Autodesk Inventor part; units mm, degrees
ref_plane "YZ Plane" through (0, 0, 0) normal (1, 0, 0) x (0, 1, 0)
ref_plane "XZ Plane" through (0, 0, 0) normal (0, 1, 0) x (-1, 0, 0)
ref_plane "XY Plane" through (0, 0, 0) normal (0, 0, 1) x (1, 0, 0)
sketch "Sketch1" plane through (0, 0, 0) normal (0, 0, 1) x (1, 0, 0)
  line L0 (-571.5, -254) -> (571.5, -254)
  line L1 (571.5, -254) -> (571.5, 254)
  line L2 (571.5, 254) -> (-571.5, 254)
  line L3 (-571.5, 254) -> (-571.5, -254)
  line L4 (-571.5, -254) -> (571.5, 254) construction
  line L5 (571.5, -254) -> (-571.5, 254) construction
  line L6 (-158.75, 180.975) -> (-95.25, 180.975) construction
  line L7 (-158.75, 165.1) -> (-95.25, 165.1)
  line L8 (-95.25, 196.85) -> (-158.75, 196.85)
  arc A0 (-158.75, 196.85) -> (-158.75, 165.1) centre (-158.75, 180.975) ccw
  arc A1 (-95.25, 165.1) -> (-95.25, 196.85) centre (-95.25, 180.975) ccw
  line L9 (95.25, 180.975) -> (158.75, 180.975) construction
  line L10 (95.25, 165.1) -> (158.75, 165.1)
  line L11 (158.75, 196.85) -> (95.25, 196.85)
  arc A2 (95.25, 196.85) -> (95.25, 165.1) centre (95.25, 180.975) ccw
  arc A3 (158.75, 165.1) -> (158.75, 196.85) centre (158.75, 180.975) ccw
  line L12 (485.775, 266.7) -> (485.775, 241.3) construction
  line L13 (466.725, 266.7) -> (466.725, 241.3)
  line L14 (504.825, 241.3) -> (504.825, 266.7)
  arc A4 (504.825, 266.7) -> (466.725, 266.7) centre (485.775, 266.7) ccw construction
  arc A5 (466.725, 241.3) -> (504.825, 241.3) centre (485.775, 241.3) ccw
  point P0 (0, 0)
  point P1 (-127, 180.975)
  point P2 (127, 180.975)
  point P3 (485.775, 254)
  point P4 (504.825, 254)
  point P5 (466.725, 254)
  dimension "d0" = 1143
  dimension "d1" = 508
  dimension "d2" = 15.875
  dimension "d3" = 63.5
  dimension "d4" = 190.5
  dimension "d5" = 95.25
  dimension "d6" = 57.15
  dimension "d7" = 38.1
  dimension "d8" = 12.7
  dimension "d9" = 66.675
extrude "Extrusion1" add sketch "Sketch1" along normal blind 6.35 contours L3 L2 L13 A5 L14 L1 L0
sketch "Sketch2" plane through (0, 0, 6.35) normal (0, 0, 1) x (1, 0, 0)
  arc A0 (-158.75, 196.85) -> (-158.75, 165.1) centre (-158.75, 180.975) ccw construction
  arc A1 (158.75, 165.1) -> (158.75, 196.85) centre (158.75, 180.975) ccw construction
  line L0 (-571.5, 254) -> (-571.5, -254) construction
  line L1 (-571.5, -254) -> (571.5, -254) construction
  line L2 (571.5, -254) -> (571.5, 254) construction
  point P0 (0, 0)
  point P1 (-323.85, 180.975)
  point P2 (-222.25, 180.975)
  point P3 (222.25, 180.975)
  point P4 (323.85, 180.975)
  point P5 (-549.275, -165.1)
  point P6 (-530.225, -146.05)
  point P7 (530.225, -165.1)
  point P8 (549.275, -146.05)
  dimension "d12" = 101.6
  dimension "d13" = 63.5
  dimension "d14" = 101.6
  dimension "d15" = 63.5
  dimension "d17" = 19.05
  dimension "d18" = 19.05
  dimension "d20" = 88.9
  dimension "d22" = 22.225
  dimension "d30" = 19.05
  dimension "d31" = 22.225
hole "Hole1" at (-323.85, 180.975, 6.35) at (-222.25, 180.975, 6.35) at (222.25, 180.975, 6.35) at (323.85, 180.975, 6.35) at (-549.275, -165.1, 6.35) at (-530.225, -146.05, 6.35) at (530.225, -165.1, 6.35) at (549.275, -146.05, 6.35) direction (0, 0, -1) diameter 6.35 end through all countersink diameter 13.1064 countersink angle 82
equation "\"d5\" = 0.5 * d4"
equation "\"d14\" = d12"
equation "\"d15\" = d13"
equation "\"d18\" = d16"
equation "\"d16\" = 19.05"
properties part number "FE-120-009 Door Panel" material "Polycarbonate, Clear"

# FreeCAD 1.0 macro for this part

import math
import FreeCAD as App
import Part
import Sketcher

V = App.Vector
Q = App.Units.Quantity

doc = App.newDocument("Part")
body = doc.addObject("PartDesign::Body", "Body")

# Sketch on XY plane
sketch1 = body.newObject("Sketcher::SketchObject", "Sketch")
sketch1.AttachmentSupport = (doc.getObject("XY_Plane"), [""])
sketch1.MapMode = "FlatFace"
sketch1.addGeometry([
    Part.LineSegment(V(-572, 254, 0), V(-572, -254, 0)),  # 0
    Part.LineSegment(V(-572, -254, 0), V(572, -254, 0)),  # 1
    Part.LineSegment(V(572, -254, 0), V(572, 254, 0)),  # 2
    Part.LineSegment(V(572, 254, 0), V(505, 254, 0)),  # 3
    Part.LineSegment(V(505, 254, 0), V(505, 241, 0)),  # 4
    Part.ArcOfCircle(Part.Circle(V(486, 241, 0), V(0, 0, 1), 19), math.radians(180), math.radians(360)),  # 5
    Part.LineSegment(V(467, 241, 0), V(467, 254, 0)),  # 6
    Part.LineSegment(V(467, 254, 0), V(-572, 254, 0)),  # 7
    Part.LineSegment(V(-95, 165, 0), V(-159, 165, 0)),  # 8
    Part.ArcOfCircle(Part.Circle(V(-159, 181, 0), V(0, 0, 1), 16), math.radians(90), math.radians(270)),  # 9
    Part.LineSegment(V(-159, 197, 0), V(-95, 197, 0)),  # 10
    Part.ArcOfCircle(Part.Circle(V(-95, 181, 0), V(0, 0, 1), 16), math.radians(-90), math.radians(90)),  # 11
    Part.LineSegment(V(159, 165, 0), V(95, 165, 0)),  # 12
    Part.ArcOfCircle(Part.Circle(V(95, 181, 0), V(0, 0, 1), 16), math.radians(90), math.radians(270)),  # 13
    Part.LineSegment(V(95, 197, 0), V(159, 197, 0)),  # 14
    Part.ArcOfCircle(Part.Circle(V(159, 181, 0), V(0, 0, 1), 16), math.radians(-90), math.radians(90)),  # 15
], False)
sketch1.addConstraint([
    Sketcher.Constraint("Coincident", 0, 2, 1, 1),
    Sketcher.Constraint("Coincident", 1, 2, 2, 1),
    Sketcher.Constraint("Coincident", 2, 2, 3, 1),
    Sketcher.Constraint("Coincident", 3, 2, 4, 1),
    Sketcher.Constraint("Tangent", 4, 2, 5, 2),
    Sketcher.Constraint("Tangent", 5, 1, 6, 1),
    Sketcher.Constraint("Coincident", 6, 2, 7, 1),
    Sketcher.Constraint("Coincident", 7, 2, 0, 1),
    Sketcher.Constraint("Tangent", 8, 2, 9, 2),
    Sketcher.Constraint("Tangent", 9, 1, 10, 1),
    Sketcher.Constraint("Tangent", 10, 2, 11, 2),
    Sketcher.Constraint("Tangent", 11, 1, 8, 1),
    Sketcher.Constraint("Tangent", 12, 2, 13, 2),
    Sketcher.Constraint("Tangent", 13, 1, 14, 1),
    Sketcher.Constraint("Tangent", 14, 2, 15, 2),
    Sketcher.Constraint("Tangent", 15, 1, 12, 1),
    Sketcher.Constraint("Vertical", 0),
    Sketcher.Constraint("Horizontal", 1),
    Sketcher.Constraint("Vertical", 2),
    Sketcher.Constraint("Horizontal", 3),
    Sketcher.Constraint("Vertical", 4),
    Sketcher.Constraint("Vertical", 6),
    Sketcher.Constraint("Horizontal", 7),
    Sketcher.Constraint("Horizontal", 8),
    Sketcher.Constraint("Horizontal", 10),
    Sketcher.Constraint("Horizontal", 12),
    Sketcher.Constraint("Horizontal", 14),
    Sketcher.Constraint("Equal", 11, 13),
    Sketcher.Constraint("Symmetric", 0, 2, 2, 2, -1, 1),
    Sketcher.Constraint("Symmetric", 11, 3, 13, 3, -2),
    Sketcher.Constraint("Horizontal", 3, 2, 6, 2),
    Sketcher.Constraint("Equal", 10, 12),
    Sketcher.Constraint("DistanceX", 1, 1, 1, 2, Q("45 in")),
    Sketcher.Constraint("DistanceY", 0, 2, 0, 1, Q("20 in")),
    Sketcher.Constraint("Radius", 5, Q("0.75 in")),
    Sketcher.Constraint("DistanceX", 8, 2, 8, 1, Q("2.5 in")),
    Sketcher.Constraint("DistanceY", 4, 2, 4, 1, Q("0.5 in")),
    Sketcher.Constraint("Radius", 9, Q("0.625 in")),
    Sketcher.Constraint("DistanceX", 11, 3, 13, 3, Q("7.5 in")),
    Sketcher.Constraint("DistanceX", 3, 2, 3, 1, Q("2.625 in")),
    Sketcher.Constraint("DistanceY", -1, 1, 8, 2, Q("6.5 in")),
])
pad1 = body.newObject("PartDesign::Pad", "Pad")
pad1.Profile = sketch1
pad1.Length = Q("0.25 in")

# Sketch on XY plane
sketch2 = body.newObject("Sketcher::SketchObject", "Sketch001")
sketch2.AttachmentSupport = (doc.getObject("XY_Plane"), [""])
sketch2.MapMode = "FlatFace"
sketch2.AttachmentOffset = App.Placement(V(0, 0, 0.25 * 25.4), App.Rotation())
sketch2.addGeometry([
    Part.Circle(V(-323.9, 181, 0), V(0, 0, 1), 3.2),  # 0
    Part.Circle(V(-222.2, 181, 0), V(0, 0, 1), 3.2),  # 1
    Part.Circle(V(222.2, 181, 0), V(0, 0, 1), 3.2),  # 2
    Part.Circle(V(323.9, 181, 0), V(0, 0, 1), 3.2),  # 3
    Part.Circle(V(-549.3, -165.1, 0), V(0, 0, 1), 3.2),  # 4
    Part.Circle(V(-530.2, -146.1, 0), V(0, 0, 1), 3.2),  # 5
    Part.Circle(V(530.2, -165.1, 0), V(0, 0, 1), 3.2),  # 6
    Part.Circle(V(549.3, -146.1, 0), V(0, 0, 1), 3.2),  # 7
], False)
sketch2.addConstraint([
    Sketcher.Constraint("Equal", 0, 1),
    Sketcher.Constraint("Equal", 1, 2),
    Sketcher.Constraint("Equal", 2, 3),
    Sketcher.Constraint("Equal", 3, 4),
    Sketcher.Constraint("Equal", 4, 5),
    Sketcher.Constraint("Equal", 5, 6),
    Sketcher.Constraint("Equal", 6, 7),
    Sketcher.Constraint("Symmetric", 1, 3, 2, 3, -2),
    Sketcher.Constraint("Symmetric", 0, 3, 3, 3, -2),
    Sketcher.Constraint("Horizontal", 0, 3, 1, 3),
    Sketcher.Constraint("Horizontal", 4, 3, 6, 3),
    Sketcher.Constraint("Horizontal", 5, 3, 7, 3),
    Sketcher.Constraint("Diameter", 0, Q("0.25 in")),
    Sketcher.Constraint("DistanceX", 0, 3, 1, 3, Q("4 in")),
    Sketcher.Constraint("DistanceY", 4, 3, -1, 1, Q("6.5 in")),
    Sketcher.Constraint("DistanceX", 1, 3, 2, 3, Q("17.5 in")),
    Sketcher.Constraint("DistanceY", 5, 3, -1, 1, Q("5.75 in")),
    Sketcher.Constraint("DistanceX", 4, 3, 5, 3, Q("0.75 in")),
    Sketcher.Constraint("DistanceX", 5, 3, 6, 3, Q("41.75 in")),
    Sketcher.Constraint("DistanceX", 6, 3, 7, 3, Q("0.75 in")),
    Sketcher.Constraint("DistanceY", -1, 1, 0, 3, Q("7.125 in")),
    Sketcher.Constraint("DistanceX", 4, 3, -1, 1, Q("21.625 in")),
])
doc.recompute()
hole = body.newObject("PartDesign::Hole", "Hole")
hole.Profile = sketch2
hole.ThreadType = "None"
hole.Diameter = Q("0.25 in")
hole.DepthType = "ThroughAll"
hole.HoleCutType = "Countersink"
hole.HoleCutDiameter = Q("0.516 in")
hole.HoleCutCountersinkAngle = 82

doc.recompute()
